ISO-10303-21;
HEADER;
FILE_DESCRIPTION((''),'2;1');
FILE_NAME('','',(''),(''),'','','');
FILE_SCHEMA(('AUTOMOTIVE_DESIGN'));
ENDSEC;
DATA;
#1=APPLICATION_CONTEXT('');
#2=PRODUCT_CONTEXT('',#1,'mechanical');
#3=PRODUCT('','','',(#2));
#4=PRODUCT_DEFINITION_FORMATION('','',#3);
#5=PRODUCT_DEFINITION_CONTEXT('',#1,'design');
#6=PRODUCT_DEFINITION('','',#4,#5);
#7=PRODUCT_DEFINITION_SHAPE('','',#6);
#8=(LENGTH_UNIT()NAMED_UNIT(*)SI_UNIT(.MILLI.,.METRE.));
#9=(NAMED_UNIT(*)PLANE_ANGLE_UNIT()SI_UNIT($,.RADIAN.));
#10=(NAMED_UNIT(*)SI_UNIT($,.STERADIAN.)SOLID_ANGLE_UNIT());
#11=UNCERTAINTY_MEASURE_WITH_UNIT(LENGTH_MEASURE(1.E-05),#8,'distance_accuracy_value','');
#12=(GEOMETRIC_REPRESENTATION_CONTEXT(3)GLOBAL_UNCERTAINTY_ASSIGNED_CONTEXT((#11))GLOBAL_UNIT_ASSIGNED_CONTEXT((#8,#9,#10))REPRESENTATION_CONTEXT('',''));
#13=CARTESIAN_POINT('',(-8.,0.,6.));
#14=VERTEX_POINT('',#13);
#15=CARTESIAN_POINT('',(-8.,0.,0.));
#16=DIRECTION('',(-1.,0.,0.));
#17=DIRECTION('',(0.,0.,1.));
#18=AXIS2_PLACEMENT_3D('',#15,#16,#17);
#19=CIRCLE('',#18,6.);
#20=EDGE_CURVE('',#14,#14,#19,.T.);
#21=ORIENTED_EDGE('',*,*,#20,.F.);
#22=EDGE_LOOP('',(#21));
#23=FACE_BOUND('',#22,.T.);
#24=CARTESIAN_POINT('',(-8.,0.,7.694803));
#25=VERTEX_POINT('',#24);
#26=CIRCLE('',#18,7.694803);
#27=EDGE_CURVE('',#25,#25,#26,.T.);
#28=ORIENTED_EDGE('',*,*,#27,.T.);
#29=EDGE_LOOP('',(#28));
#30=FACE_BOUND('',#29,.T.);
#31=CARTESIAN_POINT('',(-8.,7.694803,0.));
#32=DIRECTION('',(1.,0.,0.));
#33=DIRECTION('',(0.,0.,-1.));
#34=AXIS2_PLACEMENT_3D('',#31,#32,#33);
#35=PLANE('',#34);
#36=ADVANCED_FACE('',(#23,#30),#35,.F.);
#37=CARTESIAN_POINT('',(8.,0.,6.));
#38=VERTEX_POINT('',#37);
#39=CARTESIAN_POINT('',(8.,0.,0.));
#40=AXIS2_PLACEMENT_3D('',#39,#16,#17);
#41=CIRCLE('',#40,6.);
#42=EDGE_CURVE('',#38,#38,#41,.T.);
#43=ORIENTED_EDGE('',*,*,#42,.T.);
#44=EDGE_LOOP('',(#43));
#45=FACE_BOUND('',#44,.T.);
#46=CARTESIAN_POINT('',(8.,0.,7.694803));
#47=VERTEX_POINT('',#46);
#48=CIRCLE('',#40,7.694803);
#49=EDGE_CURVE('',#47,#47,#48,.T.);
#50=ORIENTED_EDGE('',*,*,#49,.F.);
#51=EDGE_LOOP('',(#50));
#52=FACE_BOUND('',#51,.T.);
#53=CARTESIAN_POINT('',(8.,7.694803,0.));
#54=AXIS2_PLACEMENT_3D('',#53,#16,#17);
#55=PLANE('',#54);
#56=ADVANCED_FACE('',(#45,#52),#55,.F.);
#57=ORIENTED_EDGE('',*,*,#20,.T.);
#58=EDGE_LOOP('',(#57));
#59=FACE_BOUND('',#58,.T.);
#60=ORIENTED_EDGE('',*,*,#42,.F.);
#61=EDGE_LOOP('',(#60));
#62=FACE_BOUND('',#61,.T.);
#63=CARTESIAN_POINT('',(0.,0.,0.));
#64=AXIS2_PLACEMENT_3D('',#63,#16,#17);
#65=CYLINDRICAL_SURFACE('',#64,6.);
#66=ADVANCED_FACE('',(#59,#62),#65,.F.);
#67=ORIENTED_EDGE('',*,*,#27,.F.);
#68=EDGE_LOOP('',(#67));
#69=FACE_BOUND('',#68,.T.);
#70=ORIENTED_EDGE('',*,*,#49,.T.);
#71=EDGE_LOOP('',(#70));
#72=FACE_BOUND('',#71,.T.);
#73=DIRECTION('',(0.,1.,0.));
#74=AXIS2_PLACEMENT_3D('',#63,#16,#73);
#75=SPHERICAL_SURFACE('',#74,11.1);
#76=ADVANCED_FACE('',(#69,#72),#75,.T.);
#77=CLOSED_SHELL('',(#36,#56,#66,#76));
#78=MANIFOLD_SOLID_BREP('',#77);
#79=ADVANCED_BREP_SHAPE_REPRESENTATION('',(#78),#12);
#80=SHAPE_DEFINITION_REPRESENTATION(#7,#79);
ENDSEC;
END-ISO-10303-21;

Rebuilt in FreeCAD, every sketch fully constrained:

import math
import FreeCAD as App
import Part
import Sketcher

V = App.Vector

doc = App.newDocument("Part")
body = doc.addObject("PartDesign::Body", "Body")

# Sketch on XY plane
sketch1 = body.newObject("Sketcher::SketchObject", "Sketch")
sketch1.AttachmentSupport = (doc.getObject("XY_Plane"), [""])
sketch1.MapMode = "FlatFace"
sketch1.addGeometry(Part.LineSegment(V(8, 6, 0), V(8, 7.694803, 0)), False)
sketch1.addGeometry(Part.ArcOfCircle(Part.Circle(V(0, 0, 0), V(0, 0, 1), 11.1), math.radians(43.885983), math.radians(136.114017)), False)
sketch1.addGeometry(Part.LineSegment(V(-8, 7.694803, 0), V(-8, 6, 0)), False)
sketch1.addGeometry(Part.LineSegment(V(-8, 6, 0), V(8, 6, 0)), False)
sketch1.addConstraint(Sketcher.Constraint("Coincident", 0, 2, 1, 1))
sketch1.addConstraint(Sketcher.Constraint("Coincident", 1, 2, 2, 1))
sketch1.addConstraint(Sketcher.Constraint("Coincident", 2, 2, 3, 1))
sketch1.addConstraint(Sketcher.Constraint("Coincident", 3, 2, 0, 1))
sketch1.addConstraint(Sketcher.Constraint("Vertical", 0))
sketch1.addConstraint(Sketcher.Constraint("Vertical", 2))
sketch1.addConstraint(Sketcher.Constraint("Horizontal", 3))
sketch1.addConstraint(Sketcher.Constraint("Coincident", 1, 3, -1, 1))
sketch1.addConstraint(Sketcher.Constraint("Horizontal", 0, 2, 1, 2))
sketch1.addConstraint(Sketcher.Constraint("Radius", 1, 11.1))
sketch1.addConstraint(Sketcher.Constraint("DistanceX", 3, 1, 3, 2, 16.0))
sketch1.addConstraint(Sketcher.Constraint("DistanceY", -1, 1, 2, 2, 6.0))
revolution = body.newObject("PartDesign::Revolution", "Revolution")
revolution.Profile = sketch1
revolution.ReferenceAxis = (sketch1, ["H_Axis"])
revolution.Angle = 360

doc.recompute()
